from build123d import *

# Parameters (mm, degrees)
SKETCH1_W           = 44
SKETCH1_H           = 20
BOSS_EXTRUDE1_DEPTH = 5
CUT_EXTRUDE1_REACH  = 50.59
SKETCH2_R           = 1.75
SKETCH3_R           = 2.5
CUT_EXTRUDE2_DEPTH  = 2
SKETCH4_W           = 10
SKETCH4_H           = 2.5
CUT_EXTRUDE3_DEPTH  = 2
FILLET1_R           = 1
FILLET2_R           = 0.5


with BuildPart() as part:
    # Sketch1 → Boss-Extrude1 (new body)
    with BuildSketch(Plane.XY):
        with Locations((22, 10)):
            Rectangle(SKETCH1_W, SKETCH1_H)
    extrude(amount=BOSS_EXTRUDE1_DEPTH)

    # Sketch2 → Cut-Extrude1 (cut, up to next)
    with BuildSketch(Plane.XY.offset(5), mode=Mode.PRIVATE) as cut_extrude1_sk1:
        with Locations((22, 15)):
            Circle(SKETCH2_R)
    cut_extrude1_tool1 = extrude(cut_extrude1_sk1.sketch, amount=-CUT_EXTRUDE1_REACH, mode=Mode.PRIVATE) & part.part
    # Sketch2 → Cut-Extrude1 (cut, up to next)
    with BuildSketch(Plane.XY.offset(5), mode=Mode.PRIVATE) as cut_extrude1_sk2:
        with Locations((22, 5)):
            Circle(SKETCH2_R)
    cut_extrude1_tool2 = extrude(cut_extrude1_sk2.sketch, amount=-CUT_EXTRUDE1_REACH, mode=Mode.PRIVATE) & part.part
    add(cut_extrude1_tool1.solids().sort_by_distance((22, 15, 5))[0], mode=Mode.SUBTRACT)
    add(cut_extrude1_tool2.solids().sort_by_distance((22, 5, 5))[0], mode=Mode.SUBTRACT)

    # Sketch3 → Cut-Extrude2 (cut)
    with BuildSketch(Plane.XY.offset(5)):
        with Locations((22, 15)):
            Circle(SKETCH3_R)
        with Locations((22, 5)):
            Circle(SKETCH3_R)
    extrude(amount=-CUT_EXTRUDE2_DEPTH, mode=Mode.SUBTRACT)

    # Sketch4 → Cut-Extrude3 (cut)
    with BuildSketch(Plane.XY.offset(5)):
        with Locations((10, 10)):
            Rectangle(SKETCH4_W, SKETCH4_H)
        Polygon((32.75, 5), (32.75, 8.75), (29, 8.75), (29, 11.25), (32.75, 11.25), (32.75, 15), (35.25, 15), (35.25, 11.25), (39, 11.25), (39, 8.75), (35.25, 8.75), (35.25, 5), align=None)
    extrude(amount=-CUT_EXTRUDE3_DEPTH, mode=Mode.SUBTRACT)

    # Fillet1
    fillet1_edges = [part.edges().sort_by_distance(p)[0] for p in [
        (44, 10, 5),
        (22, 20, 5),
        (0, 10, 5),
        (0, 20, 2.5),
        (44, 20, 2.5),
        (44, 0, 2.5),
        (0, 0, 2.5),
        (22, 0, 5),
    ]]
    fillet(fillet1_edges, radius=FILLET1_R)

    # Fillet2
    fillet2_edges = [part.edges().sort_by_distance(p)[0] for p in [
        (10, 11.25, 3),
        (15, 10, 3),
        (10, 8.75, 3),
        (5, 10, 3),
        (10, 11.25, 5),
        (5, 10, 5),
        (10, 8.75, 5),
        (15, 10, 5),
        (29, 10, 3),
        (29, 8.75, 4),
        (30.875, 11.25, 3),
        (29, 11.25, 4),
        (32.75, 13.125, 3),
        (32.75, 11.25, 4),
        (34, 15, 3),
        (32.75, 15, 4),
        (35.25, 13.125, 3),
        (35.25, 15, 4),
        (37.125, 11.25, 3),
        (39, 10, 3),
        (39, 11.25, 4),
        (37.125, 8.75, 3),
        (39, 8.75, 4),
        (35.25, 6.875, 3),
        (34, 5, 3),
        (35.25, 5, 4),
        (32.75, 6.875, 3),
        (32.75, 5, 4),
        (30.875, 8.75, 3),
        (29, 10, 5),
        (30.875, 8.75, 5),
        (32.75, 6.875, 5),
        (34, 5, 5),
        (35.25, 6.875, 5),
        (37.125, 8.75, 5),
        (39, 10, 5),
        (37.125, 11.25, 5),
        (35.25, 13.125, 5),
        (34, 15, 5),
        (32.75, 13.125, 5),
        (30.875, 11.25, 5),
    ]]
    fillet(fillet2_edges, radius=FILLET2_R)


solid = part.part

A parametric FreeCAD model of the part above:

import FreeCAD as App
import Part
import Sketcher

V = App.Vector
Q = App.Units.Quantity


def edges_at(feature, points):
    """Names of the edges that pass closest to the given points."""
    edges = feature.Shape.Edges
    near = lambda p: min(range(len(edges)), key=lambda i: edges[i].distToShape(Part.Vertex(*p))[0])
    return sorted({f"Edge{near(p) + 1}" for p in points})

doc = App.newDocument("Part")
body = doc.addObject("PartDesign::Body", "Body")

# Sketch on XY plane
sketch1 = body.newObject("Sketcher::SketchObject", "Sketch")
sketch1.AttachmentSupport = (doc.getObject("XY_Plane"), [""])
sketch1.MapMode = "FlatFace"
sketch1.addGeometry(Part.LineSegment(V(0, 20, 0), V(0, 0, 0)), False)
sketch1.addGeometry(Part.LineSegment(V(0, 0, 0), V(44, 0, 0)), False)
sketch1.addGeometry(Part.LineSegment(V(44, 0, 0), V(44, 20, 0)), False)
sketch1.addGeometry(Part.LineSegment(V(44, 20, 0), V(0, 20, 0)), False)
sketch1.addConstraint(Sketcher.Constraint("Coincident", 0, 2, 1, 1))
sketch1.addConstraint(Sketcher.Constraint("Coincident", 1, 2, 2, 1))
sketch1.addConstraint(Sketcher.Constraint("Coincident", 2, 2, 3, 1))
sketch1.addConstraint(Sketcher.Constraint("Coincident", 3, 2, 0, 1))
sketch1.addConstraint(Sketcher.Constraint("Vertical", 0))
sketch1.addConstraint(Sketcher.Constraint("Horizontal", 1))
sketch1.addConstraint(Sketcher.Constraint("Vertical", 2))
sketch1.addConstraint(Sketcher.Constraint("Horizontal", 3))
sketch1.addConstraint(Sketcher.Constraint("Coincident", 0, 2, -1, 1))
sketch1.addConstraint(Sketcher.Constraint("DistanceX", 1, 1, 1, 2, Q("44 mm")))
sketch1.addConstraint(Sketcher.Constraint("DistanceY", 0, 2, 0, 1, Q("20 mm")))
pad1 = body.newObject("PartDesign::Pad", "Pad")
pad1.Profile = sketch1
pad1.Length = 5

# Sketch on XY plane
sketch2 = body.newObject("Sketcher::SketchObject", "Sketch001")
sketch2.AttachmentSupport = (doc.getObject("XY_Plane"), [""])
sketch2.MapMode = "FlatFace"
sketch2.AttachmentOffset = App.Placement(V(0, 0, 5), App.Rotation())
sketch2.addGeometry(Part.Circle(V(22, 15, 0), V(0, 0, 1), 1.8), False)
sketch2.addConstraint(Sketcher.Constraint("Diameter", 0, Q("3.5 mm")))
sketch2.addConstraint(Sketcher.Constraint("DistanceX", -1, 1, 0, 3, Q("22 mm")))
sketch2.addConstraint(Sketcher.Constraint("DistanceY", -1, 1, 0, 3, Q("15 mm")))
pocket1 = body.newObject("PartDesign::Pocket", "Pocket")
pocket1.Profile = sketch2
pocket1.Type = "UpToFirst"

# Sketch on XY plane
sketch3 = body.newObject("Sketcher::SketchObject", "Sketch002")
sketch3.AttachmentSupport = (doc.getObject("XY_Plane"), [""])
sketch3.MapMode = "FlatFace"
sketch3.AttachmentOffset = App.Placement(V(0, 0, 5), App.Rotation())
sketch3.addGeometry(Part.Circle(V(22, 5, 0), V(0, 0, 1), 1.8), False)
sketch3.addConstraint(Sketcher.Constraint("Diameter", 0, Q("3.5 mm")))
sketch3.addConstraint(Sketcher.Constraint("DistanceX", -1, 1, 0, 3, Q("22 mm")))
sketch3.addConstraint(Sketcher.Constraint("DistanceY", -1, 1, 0, 3, Q("5 mm")))
pocket2 = body.newObject("PartDesign::Pocket", "Pocket001")
pocket2.Profile = sketch3
pocket2.Type = "UpToFirst"

# Sketch on XY plane
sketch4 = body.newObject("Sketcher::SketchObject", "Sketch003")
sketch4.AttachmentSupport = (doc.getObject("XY_Plane"), [""])
sketch4.MapMode = "FlatFace"
sketch4.AttachmentOffset = App.Placement(V(0, 0, 5), App.Rotation())
sketch4.addGeometry(Part.Circle(V(22, 15, 0), V(0, 0, 1), 2.5), False)
sketch4.addGeometry(Part.Circle(V(22, 5, 0), V(0, 0, 1), 2.5), False)
sketch4.addConstraint(Sketcher.Constraint("Equal", 0, 1))
sketch4.addConstraint(Sketcher.Constraint("Vertical", 0, 3, 1, 3))
sketch4.addConstraint(Sketcher.Constraint("Diameter", 0, Q("5 mm")))
sketch4.addConstraint(Sketcher.Constraint("DistanceX", -1, 1, 0, 3, Q("22 mm")))
sketch4.addConstraint(Sketcher.Constraint("DistanceY", -1, 1, 0, 3, Q("15 mm")))
sketch4.addConstraint(Sketcher.Constraint("DistanceY", -1, 1, 1, 3, Q("5 mm")))
pocket3 = body.newObject("PartDesign::Pocket", "Pocket002")
pocket3.Profile = sketch4
pocket3.Length = 2

# Sketch on XY plane
sketch5 = body.newObject("Sketcher::SketchObject", "Sketch004")
sketch5.AttachmentSupport = (doc.getObject("XY_Plane"), [""])
sketch5.MapMode = "FlatFace"
sketch5.AttachmentOffset = App.Placement(V(0, 0, 5), App.Rotation())
sketch5.addGeometry(Part.LineSegment(V(5, 11.2, 0), V(5, 8.8, 0)), False)
sketch5.addGeometry(Part.LineSegment(V(5, 8.8, 0), V(15, 8.8, 0)), False)
sketch5.addGeometry(Part.LineSegment(V(15, 8.8, 0), V(15, 11.2, 0)), False)
sketch5.addGeometry(Part.LineSegment(V(15, 11.2, 0), V(5, 11.2, 0)), False)
sketch5.addGeometry(Part.LineSegment(V(32.8, 8.8, 0), V(32.8, 5, 0)), False)
sketch5.addGeometry(Part.LineSegment(V(32.8, 5, 0), V(35.2, 5, 0)), False)
sketch5.addGeometry(Part.LineSegment(V(35.2, 5, 0), V(35.2, 8.8, 0)), False)
sketch5.addGeometry(Part.LineSegment(V(35.2, 8.8, 0), V(39, 8.8, 0)), False)
sketch5.addGeometry(Part.LineSegment(V(39, 8.8, 0), V(39, 11.2, 0)), False)
sketch5.addGeometry(Part.LineSegment(V(39, 11.2, 0), V(35.2, 11.2, 0)), False)
sketch5.addGeometry(Part.LineSegment(V(35.2, 11.2, 0), V(35.2, 15, 0)), False)
sketch5.addGeometry(Part.LineSegment(V(35.2, 15, 0), V(32.8, 15, 0)), False)
sketch5.addGeometry(Part.LineSegment(V(32.8, 15, 0), V(32.8, 11.2, 0)), False)
sketch5.addGeometry(Part.LineSegment(V(32.8, 11.2, 0), V(29, 11.2, 0)), False)
sketch5.addGeometry(Part.LineSegment(V(29, 11.2, 0), V(29, 8.8, 0)), False)
sketch5.addGeometry(Part.LineSegment(V(29, 8.8, 0), V(32.8, 8.8, 0)), False)
sketch5.addConstraint(Sketcher.Constraint("Coincident", 0, 2, 1, 1))
sketch5.addConstraint(Sketcher.Constraint("Coincident", 1, 2, 2, 1))
sketch5.addConstraint(Sketcher.Constraint("Coincident", 2, 2, 3, 1))
sketch5.addConstraint(Sketcher.Constraint("Coincident", 3, 2, 0, 1))
sketch5.addConstraint(Sketcher.Constraint("Coincident", 4, 2, 5, 1))
sketch5.addConstraint(Sketcher.Constraint("Coincident", 5, 2, 6, 1))
sketch5.addConstraint(Sketcher.Constraint("Coincident", 6, 2, 7, 1))
sketch5.addConstraint(Sketcher.Constraint("Coincident", 7, 2, 8, 1))
sketch5.addConstraint(Sketcher.Constraint("Coincident", 8, 2, 9, 1))
sketch5.addConstraint(Sketcher.Constraint("Coincident", 9, 2, 10, 1))
sketch5.addConstraint(Sketcher.Constraint("Coincident", 10, 2, 11, 1))
sketch5.addConstraint(Sketcher.Constraint("Coincident", 11, 2, 12, 1))
sketch5.addConstraint(Sketcher.Constraint("Coincident", 12, 2, 13, 1))
sketch5.addConstraint(Sketcher.Constraint("Coincident", 13, 2, 14, 1))
sketch5.addConstraint(Sketcher.Constraint("Coincident", 14, 2, 15, 1))
sketch5.addConstraint(Sketcher.Constraint("Coincident", 15, 2, 4, 1))
sketch5.addConstraint(Sketcher.Constraint("Vertical", 0))
sketch5.addConstraint(Sketcher.Constraint("Horizontal", 1))
sketch5.addConstraint(Sketcher.Constraint("Vertical", 2))
sketch5.addConstraint(Sketcher.Constraint("Horizontal", 3))
sketch5.addConstraint(Sketcher.Constraint("Vertical", 4))
sketch5.addConstraint(Sketcher.Constraint("Horizontal", 5))
sketch5.addConstraint(Sketcher.Constraint("Vertical", 6))
sketch5.addConstraint(Sketcher.Constraint("Horizontal", 7))
sketch5.addConstraint(Sketcher.Constraint("Vertical", 8))
sketch5.addConstraint(Sketcher.Constraint("Horizontal", 9))
sketch5.addConstraint(Sketcher.Constraint("Vertical", 10))
sketch5.addConstraint(Sketcher.Constraint("Horizontal", 11))
sketch5.addConstraint(Sketcher.Constraint("Vertical", 12))
sketch5.addConstraint(Sketcher.Constraint("Horizontal", 13))
sketch5.addConstraint(Sketcher.Constraint("Vertical", 14))
sketch5.addConstraint(Sketcher.Constraint("Horizontal", 15))
sketch5.addConstraint(Sketcher.Constraint("Horizontal", 1, 2, 6, 2))
sketch5.addConstraint(Sketcher.Constraint("Horizontal", 3, 2, 8, 2))
sketch5.addConstraint(Sketcher.Constraint("Horizontal", 9, 2, 12, 2))
sketch5.addConstraint(Sketcher.Constraint("Horizontal", 7, 2, 14, 2))
sketch5.addConstraint(Sketcher.Constraint("Vertical", 6, 2, 9, 2))
sketch5.addConstraint(Sketcher.Constraint("Vertical", 4, 2, 11, 2))
sketch5.addConstraint(Sketcher.Constraint("Equal", 9, 13))
sketch5.addConstraint(Sketcher.Constraint("Equal", 11, 0))
sketch5.addConstraint(Sketcher.Constraint("Equal", 15, 4))
sketch5.addConstraint(Sketcher.Constraint("Equal", 6, 10))
sketch5.addConstraint(Sketcher.Constraint("DistanceX", 1, 1, 1, 2, Q("10 mm")))
sketch5.addConstraint(Sketcher.Constraint("DistanceX", 5, 1, 5, 2, Q("2.5 mm")))
sketch5.addConstraint(Sketcher.Constraint("DistanceX", -1, 1, 0, 2, Q("5 mm")))
sketch5.addConstraint(Sketcher.Constraint("DistanceY", -1, 1, 4, 2, Q("5 mm")))
sketch5.addConstraint(Sketcher.Constraint("DistanceX", -1, 1, 7, 2, Q("39 mm")))
sketch5.addConstraint(Sketcher.Constraint("DistanceY", -1, 1, 10, 2, Q("15 mm")))
pocket4 = body.newObject("PartDesign::Pocket", "Pocket003")
pocket4.Profile = sketch5
pocket4.Length = 2
doc.recompute()

fillet = body.newObject("PartDesign::Fillet", "Fillet")
fillet.Base = (pocket4, edges_at(pocket4, [
    (44, 10, 5),
    (22, 20, 5),
    (0, 10, 5),
    (0, 20, 2.5),
    (44, 20, 2.5),
    (44, 0, 2.5),
    (0, 0, 2.5),
    (22, 0, 5),
]))
fillet.Radius = 1
doc.recompute()

fillet2 = body.newObject("PartDesign::Fillet", "Fillet001")
fillet2.Base = (fillet, edges_at(fillet, [
    (10, 11.25, 3),
    (15, 10, 3),
    (10, 8.75, 3),
    (5, 10, 3),
    (10, 11.25, 5),
    (5, 10, 5),
    (10, 8.75, 5),
    (15, 10, 5),
    (29, 10, 3),
    (29, 8.75, 4),
    (30.875, 11.25, 3),
    (29, 11.25, 4),
    (32.75, 13.125, 3),
    (32.75, 11.25, 4),
    (34, 15, 3),
    (32.75, 15, 4),
    (35.25, 13.125, 3),
    (35.25, 15, 4),
    (37.125, 11.25, 3),
    (39, 10, 3),
    (39, 11.25, 4),
    (37.125, 8.75, 3),
    (39, 8.75, 4),
    (35.25, 6.875, 3),
    (34, 5, 3),
    (35.25, 5, 4),
    (32.75, 6.875, 3),
    (32.75, 5, 4),
    (30.875, 8.75, 3),
    (29, 10, 5),
    (30.875, 8.75, 5),
    (32.75, 6.875, 5),
    (34, 5, 5),
    (35.25, 6.875, 5),
    (37.125, 8.75, 5),
    (39, 10, 5),
    (37.125, 11.25, 5),
    (35.25, 13.125, 5),
    (34, 15, 5),
    (32.75, 13.125, 5),
    (30.875, 11.25, 5),
]))
fillet2.Radius = 0.5

doc.recompute()
